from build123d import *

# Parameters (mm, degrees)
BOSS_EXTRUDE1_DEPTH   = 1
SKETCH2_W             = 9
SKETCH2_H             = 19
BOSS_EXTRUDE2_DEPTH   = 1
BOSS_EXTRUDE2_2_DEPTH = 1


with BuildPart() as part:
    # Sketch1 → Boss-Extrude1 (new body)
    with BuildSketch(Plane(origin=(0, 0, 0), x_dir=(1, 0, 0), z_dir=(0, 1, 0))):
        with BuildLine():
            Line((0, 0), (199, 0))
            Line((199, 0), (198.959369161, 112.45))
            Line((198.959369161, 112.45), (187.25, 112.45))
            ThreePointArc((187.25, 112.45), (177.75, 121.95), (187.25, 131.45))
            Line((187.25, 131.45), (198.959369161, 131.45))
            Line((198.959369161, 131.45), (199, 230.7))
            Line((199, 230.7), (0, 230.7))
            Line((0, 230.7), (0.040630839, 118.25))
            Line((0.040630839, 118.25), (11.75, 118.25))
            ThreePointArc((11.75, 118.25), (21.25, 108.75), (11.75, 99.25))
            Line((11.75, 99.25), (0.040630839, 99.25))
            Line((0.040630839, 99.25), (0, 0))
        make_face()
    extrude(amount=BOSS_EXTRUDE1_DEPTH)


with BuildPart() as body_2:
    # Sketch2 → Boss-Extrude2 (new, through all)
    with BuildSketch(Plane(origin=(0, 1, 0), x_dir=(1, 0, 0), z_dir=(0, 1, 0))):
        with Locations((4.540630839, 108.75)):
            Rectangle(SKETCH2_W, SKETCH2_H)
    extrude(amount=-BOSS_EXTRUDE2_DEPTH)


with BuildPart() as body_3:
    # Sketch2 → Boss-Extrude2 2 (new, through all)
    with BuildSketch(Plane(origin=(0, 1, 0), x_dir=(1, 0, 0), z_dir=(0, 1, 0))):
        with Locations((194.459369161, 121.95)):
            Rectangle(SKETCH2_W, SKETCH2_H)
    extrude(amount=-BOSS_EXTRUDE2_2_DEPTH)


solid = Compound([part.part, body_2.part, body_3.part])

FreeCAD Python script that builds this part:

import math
import FreeCAD as App
import Part
import Sketcher
Q = App.Units.Quantity


def add_polygon(sketch, points):
    """Adds a closed chain of lines whose ends are joined by coincident constraints."""
    first, n = sketch.GeometryCount, len(points)
    for a, b in zip(points, points[1:] + points[:1]):
        sketch.addGeometry(Part.LineSegment(App.Vector(*a, 0), App.Vector(*b, 0)), False)
    for i in range(n):
        sketch.addConstraint(Sketcher.Constraint("Coincident", first + i, 2, first + (i + 1) % n, 1))

doc = App.newDocument("Part")
body = doc.addObject("PartDesign::Body", "Body")

sketch1 = doc.addObject("Sketcher::SketchObject", "Sketch")
body.addObject(sketch1)
sketch1.AttachmentSupport = (doc.XZ_Plane, [""])
sketch1.MapMode = "FlatFace"
sketch1.addGeometry(Part.LineSegment(App.Vector(0, 0, 0), App.Vector(199, 0, 0)), False)
sketch1.addGeometry(Part.LineSegment(App.Vector(199, 0, 0), App.Vector(198.959369, -112.45, 0)), False)
sketch1.addGeometry(Part.LineSegment(App.Vector(198.959369, -112.45, 0), App.Vector(187.25, -112.45, 0)), False)
sketch1.addGeometry(Part.ArcOfCircle(Part.Circle(App.Vector(187.25, -121.95, 0), App.Vector(0, 0, 1), 9.5), math.radians(90), math.radians(270)), False)
sketch1.addGeometry(Part.LineSegment(App.Vector(187.25, -131.45, 0), App.Vector(198.959369, -131.45, 0)), False)
sketch1.addGeometry(Part.LineSegment(App.Vector(198.959369, -131.45, 0), App.Vector(199, -230.7, 0)), False)
sketch1.addGeometry(Part.LineSegment(App.Vector(199, -230.7, 0), App.Vector(0, -230.7, 0)), False)
sketch1.addGeometry(Part.LineSegment(App.Vector(0, -230.7, 0), App.Vector(0.040631, -118.25, 0)), False)
sketch1.addGeometry(Part.LineSegment(App.Vector(0.040631, -118.25, 0), App.Vector(11.75, -118.25, 0)), False)
sketch1.addGeometry(Part.ArcOfCircle(Part.Circle(App.Vector(11.75, -108.75, 0), App.Vector(0, 0, 1), 9.5), math.radians(-90), math.radians(90)), False)
sketch1.addGeometry(Part.LineSegment(App.Vector(11.75, -99.25, 0), App.Vector(0.040631, -99.25, 0)), False)
sketch1.addGeometry(Part.LineSegment(App.Vector(0.040631, -99.25, 0), App.Vector(0, 0, 0)), False)
sketch1.addConstraint(Sketcher.Constraint("Coincident", 0, 2, 1, 1))
sketch1.addConstraint(Sketcher.Constraint("Coincident", 1, 2, 2, 1))
sketch1.addConstraint(Sketcher.Constraint("Tangent", 2, 2, 3, 1))
sketch1.addConstraint(Sketcher.Constraint("Tangent", 3, 2, 4, 1))
sketch1.addConstraint(Sketcher.Constraint("Coincident", 4, 2, 5, 1))
sketch1.addConstraint(Sketcher.Constraint("Coincident", 5, 2, 6, 1))
sketch1.addConstraint(Sketcher.Constraint("Coincident", 6, 2, 7, 1))
sketch1.addConstraint(Sketcher.Constraint("Coincident", 7, 2, 8, 1))
sketch1.addConstraint(Sketcher.Constraint("Tangent", 8, 2, 9, 1))
sketch1.addConstraint(Sketcher.Constraint("Tangent", 9, 2, 10, 1))
sketch1.addConstraint(Sketcher.Constraint("Coincident", 10, 2, 11, 1))
sketch1.addConstraint(Sketcher.Constraint("Coincident", 11, 2, 0, 1))
sketch1.addConstraint(Sketcher.Constraint("Horizontal", 0))
sketch1.addConstraint(Sketcher.Constraint("Horizontal", 2))
sketch1.addConstraint(Sketcher.Constraint("Horizontal", 4))
sketch1.addConstraint(Sketcher.Constraint("Horizontal", 6))
sketch1.addConstraint(Sketcher.Constraint("Horizontal", 8))
sketch1.addConstraint(Sketcher.Constraint("Horizontal", 10))
sketch1.addConstraint(Sketcher.Constraint("Coincident", 11, 2, -1, 1))
sketch1.addConstraint(Sketcher.Constraint("Equal", 3, 9))
sketch1.addConstraint(Sketcher.Constraint("PointOnObject", 6, 2, -2))
sketch1.addConstraint(Sketcher.Constraint("Parallel", 1, 7))
sketch1.addConstraint(Sketcher.Constraint("Parallel", 5, 11))
sketch1.addConstraint(Sketcher.Constraint("Vertical", 1, 2, 4, 2))
sketch1.addConstraint(Sketcher.Constraint("Vertical", 0, 2, 5, 2))
sketch1.addConstraint(Sketcher.Constraint("Equal", 4, 8))
sketch1.addConstraint(Sketcher.Constraint("Equal", 1, 7))
sketch1.addConstraint(Sketcher.Constraint("Radius", 3, Q("9.5 mm")))
sketch1.addConstraint(Sketcher.Constraint("DistanceX", 0, 1, 0, 2, Q("199 mm")))
sketch1.addConstraint(Sketcher.Constraint("DistanceY", 5, 2, -1, 1, Q("230.7 mm")))
sketch1.addConstraint(Sketcher.Constraint("DistanceX", 9, 3, 3, 3, Q("175.5 mm")))
sketch1.addConstraint(Sketcher.Constraint("DistanceY", 3, 3, 9, 3, Q("13.2 mm")))
sketch1.addConstraint(Sketcher.Constraint("DistanceX", 2, 2, 2, 1, Q("11.709369 mm")))
pad1 = doc.addObject("PartDesign::Pad", "Pad")
body.addObject(pad1)
pad1.Profile = sketch1
pad1.Length = 1
pad1.Reversed = True
body2 = doc.addObject("PartDesign::Body", "Body001")

sketch2 = doc.addObject("Sketcher::SketchObject", "Sketch001")
body2.addObject(sketch2)
sketch2.AttachmentSupport = (doc.getObject("XZ_Plane001"), [""])
sketch2.MapMode = "FlatFace"
sketch2.AttachmentOffset = App.Placement(App.Vector(0, 0, -1), App.Rotation())
add_polygon(sketch2, [(0.040631, -118.25), (0.040631, -99.25), (9.040631, -99.25), (9.040631, -118.25)])
sketch2.addConstraint(Sketcher.Constraint("Vertical", 0))
sketch2.addConstraint(Sketcher.Constraint("Horizontal", 1))
sketch2.addConstraint(Sketcher.Constraint("Vertical", 2))
sketch2.addConstraint(Sketcher.Constraint("Horizontal", 3))
sketch2.addConstraint(Sketcher.Constraint("DistanceX", 1, 1, 1, 2, Q("9 mm")))
sketch2.addConstraint(Sketcher.Constraint("DistanceY", 0, 1, 0, 2, Q("19 mm")))
sketch2.addConstraint(Sketcher.Constraint("DistanceY", 0, 2, -1, 1, Q("99.25 mm")))
sketch2.addConstraint(Sketcher.Constraint("DistanceX", -1, 1, 0, 2, Q("0.040631 mm")))
pad2 = doc.addObject("PartDesign::Pad", "Pad001")
body2.addObject(pad2)
pad2.Profile = sketch2
pad2.Length = 1
body3 = doc.addObject("PartDesign::Body", "Body002")

sketch3 = doc.addObject("Sketcher::SketchObject", "Sketch002")
body3.addObject(sketch3)
sketch3.AttachmentSupport = (doc.getObject("XZ_Plane002"), [""])
sketch3.MapMode = "FlatFace"
sketch3.AttachmentOffset = App.Placement(App.Vector(0, 0, -1), App.Rotation())
add_polygon(sketch3, [(189.959369, -131.45), (189.959369, -112.45), (198.959369, -112.45), (198.959369, -131.45)])
sketch3.addConstraint(Sketcher.Constraint("Vertical", 0))
sketch3.addConstraint(Sketcher.Constraint("Horizontal", 1))
sketch3.addConstraint(Sketcher.Constraint("Vertical", 2))
sketch3.addConstraint(Sketcher.Constraint("Horizontal", 3))
sketch3.addConstraint(Sketcher.Constraint("DistanceX", 1, 1, 1, 2, Q("9 mm")))
sketch3.addConstraint(Sketcher.Constraint("DistanceY", 0, 1, 0, 2, Q("19 mm")))
sketch3.addConstraint(Sketcher.Constraint("DistanceY", 0, 2, -1, 1, Q("112.45 mm")))
sketch3.addConstraint(Sketcher.Constraint("DistanceX", -1, 1, 0, 2, Q("189.959369 mm")))
pad3 = doc.addObject("PartDesign::Pad", "Pad002")
body3.addObject(pad3)
pad3.Profile = sketch3
pad3.Length = 1

doc.recompute()
